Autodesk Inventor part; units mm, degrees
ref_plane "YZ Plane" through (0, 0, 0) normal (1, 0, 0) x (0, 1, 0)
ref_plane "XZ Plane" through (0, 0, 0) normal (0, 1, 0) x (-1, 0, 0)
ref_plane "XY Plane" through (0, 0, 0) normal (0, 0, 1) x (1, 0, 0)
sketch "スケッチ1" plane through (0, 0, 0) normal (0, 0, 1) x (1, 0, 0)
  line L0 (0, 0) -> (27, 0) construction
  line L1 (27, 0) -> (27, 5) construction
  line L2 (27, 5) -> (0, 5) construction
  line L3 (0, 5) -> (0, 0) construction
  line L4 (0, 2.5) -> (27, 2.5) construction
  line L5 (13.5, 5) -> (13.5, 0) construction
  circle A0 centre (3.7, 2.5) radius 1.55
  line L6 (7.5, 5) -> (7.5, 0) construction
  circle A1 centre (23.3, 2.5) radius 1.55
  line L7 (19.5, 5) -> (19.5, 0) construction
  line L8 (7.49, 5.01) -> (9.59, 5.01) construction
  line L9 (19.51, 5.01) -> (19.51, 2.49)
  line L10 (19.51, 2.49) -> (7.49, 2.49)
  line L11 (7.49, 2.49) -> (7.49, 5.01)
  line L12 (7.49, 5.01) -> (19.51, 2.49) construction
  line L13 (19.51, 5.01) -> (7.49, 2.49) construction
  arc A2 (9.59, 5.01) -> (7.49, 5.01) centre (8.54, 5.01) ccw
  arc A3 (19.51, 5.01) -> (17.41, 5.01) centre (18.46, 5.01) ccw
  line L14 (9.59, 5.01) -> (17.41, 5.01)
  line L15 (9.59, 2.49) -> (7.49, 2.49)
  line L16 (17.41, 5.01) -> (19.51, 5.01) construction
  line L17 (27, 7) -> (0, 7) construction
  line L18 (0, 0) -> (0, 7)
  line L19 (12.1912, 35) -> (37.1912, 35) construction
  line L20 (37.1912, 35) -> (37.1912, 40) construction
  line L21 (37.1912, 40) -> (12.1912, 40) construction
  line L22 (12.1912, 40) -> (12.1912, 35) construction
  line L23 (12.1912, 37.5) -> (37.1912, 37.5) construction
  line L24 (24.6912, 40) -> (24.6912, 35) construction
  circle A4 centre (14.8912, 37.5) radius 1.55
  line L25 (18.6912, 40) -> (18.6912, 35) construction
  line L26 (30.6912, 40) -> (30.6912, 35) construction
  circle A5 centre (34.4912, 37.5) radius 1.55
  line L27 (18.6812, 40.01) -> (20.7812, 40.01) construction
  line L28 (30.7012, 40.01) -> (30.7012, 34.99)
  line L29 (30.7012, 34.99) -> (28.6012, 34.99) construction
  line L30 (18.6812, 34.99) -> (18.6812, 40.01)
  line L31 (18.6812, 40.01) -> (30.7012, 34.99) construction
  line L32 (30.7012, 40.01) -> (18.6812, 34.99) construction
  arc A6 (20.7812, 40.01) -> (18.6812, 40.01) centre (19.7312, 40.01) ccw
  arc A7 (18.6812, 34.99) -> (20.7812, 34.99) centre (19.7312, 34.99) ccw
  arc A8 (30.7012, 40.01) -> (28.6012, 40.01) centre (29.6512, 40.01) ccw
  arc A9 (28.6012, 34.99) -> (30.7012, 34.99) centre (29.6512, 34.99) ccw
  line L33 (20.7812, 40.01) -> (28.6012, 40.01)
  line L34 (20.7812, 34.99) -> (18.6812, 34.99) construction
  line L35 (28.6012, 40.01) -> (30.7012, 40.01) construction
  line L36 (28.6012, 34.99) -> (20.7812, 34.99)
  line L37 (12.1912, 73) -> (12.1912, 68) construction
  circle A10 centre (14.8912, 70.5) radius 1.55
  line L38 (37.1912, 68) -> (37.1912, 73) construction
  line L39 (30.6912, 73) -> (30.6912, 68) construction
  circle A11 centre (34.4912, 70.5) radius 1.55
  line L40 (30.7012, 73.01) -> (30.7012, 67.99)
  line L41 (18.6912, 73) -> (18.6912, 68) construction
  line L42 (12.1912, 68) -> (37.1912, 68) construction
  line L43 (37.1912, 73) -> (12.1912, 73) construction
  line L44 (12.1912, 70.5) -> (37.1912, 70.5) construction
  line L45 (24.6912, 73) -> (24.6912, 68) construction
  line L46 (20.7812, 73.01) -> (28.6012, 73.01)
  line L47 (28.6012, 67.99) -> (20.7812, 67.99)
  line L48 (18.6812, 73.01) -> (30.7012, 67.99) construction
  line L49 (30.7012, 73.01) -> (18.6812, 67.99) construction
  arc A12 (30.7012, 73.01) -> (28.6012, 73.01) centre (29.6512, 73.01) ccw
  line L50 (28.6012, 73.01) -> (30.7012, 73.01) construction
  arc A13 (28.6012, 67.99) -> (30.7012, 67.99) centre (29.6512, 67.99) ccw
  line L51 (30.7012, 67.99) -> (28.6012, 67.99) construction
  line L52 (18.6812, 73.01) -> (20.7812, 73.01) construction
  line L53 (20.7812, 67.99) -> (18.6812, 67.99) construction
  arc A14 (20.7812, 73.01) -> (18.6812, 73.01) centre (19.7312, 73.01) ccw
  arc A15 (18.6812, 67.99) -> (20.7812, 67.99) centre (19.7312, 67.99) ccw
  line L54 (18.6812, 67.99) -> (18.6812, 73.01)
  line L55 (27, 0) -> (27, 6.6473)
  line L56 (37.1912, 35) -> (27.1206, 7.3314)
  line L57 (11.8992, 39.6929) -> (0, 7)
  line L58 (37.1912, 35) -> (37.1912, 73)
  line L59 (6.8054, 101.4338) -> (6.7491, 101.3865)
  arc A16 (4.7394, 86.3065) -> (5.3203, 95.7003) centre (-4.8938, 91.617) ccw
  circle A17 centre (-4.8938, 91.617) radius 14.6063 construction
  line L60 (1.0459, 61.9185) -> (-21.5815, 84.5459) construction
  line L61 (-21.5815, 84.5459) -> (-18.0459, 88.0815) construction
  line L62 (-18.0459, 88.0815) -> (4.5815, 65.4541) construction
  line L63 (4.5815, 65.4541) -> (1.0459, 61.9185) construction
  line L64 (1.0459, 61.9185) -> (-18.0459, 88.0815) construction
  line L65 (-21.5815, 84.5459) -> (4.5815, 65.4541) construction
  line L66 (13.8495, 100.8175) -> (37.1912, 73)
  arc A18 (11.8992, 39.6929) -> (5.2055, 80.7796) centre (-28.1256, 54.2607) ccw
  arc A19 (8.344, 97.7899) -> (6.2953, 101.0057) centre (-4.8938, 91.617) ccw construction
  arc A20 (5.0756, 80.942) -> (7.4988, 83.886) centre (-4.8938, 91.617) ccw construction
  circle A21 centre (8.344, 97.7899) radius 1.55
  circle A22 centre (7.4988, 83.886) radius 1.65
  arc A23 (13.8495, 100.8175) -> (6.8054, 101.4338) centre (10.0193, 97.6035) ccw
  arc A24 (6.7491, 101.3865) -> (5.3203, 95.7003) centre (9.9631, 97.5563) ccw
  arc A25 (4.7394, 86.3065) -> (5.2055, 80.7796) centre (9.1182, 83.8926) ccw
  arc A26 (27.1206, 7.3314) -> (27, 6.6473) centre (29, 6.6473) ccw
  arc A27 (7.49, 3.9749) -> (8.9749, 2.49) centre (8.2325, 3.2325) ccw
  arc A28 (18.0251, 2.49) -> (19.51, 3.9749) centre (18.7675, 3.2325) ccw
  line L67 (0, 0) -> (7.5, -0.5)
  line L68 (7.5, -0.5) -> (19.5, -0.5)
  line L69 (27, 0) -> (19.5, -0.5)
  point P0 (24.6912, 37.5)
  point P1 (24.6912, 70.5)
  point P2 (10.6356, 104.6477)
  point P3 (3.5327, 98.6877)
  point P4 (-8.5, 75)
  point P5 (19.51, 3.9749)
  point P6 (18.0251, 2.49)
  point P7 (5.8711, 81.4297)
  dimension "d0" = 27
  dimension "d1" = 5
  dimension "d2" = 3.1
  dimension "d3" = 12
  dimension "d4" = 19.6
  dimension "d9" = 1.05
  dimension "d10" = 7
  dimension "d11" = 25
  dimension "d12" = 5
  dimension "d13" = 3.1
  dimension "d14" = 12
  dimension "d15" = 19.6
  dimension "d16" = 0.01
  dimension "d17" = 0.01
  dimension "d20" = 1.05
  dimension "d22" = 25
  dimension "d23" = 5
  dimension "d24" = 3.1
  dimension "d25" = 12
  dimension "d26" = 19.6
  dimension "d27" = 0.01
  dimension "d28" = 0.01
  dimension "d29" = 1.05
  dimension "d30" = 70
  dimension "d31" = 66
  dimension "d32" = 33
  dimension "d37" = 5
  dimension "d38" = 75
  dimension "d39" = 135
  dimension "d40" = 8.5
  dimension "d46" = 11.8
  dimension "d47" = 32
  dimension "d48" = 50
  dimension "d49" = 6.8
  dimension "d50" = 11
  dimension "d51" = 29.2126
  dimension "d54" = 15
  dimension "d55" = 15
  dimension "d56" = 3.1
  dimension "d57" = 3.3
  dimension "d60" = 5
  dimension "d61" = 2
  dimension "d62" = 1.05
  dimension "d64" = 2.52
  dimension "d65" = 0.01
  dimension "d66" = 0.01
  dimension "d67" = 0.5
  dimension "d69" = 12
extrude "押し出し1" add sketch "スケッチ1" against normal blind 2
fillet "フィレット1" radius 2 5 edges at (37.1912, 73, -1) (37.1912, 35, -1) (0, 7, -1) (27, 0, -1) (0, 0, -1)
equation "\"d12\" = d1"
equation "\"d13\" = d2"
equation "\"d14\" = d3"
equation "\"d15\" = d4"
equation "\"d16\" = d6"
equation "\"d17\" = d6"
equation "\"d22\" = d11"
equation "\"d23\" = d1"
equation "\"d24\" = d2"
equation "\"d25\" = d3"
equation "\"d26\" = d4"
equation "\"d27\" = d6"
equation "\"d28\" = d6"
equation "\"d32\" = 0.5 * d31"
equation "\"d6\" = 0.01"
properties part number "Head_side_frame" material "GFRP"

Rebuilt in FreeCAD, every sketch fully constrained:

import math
import FreeCAD as App
import Part
import Sketcher
from FreeCAD import Vector
Q = App.Units.Quantity


def edges_at(feature, points):
    """Names of the edges that pass closest to the given points."""
    edges = feature.Shape.Edges
    near = lambda p: min(range(len(edges)), key=lambda i: edges[i].distToShape(Part.Vertex(*p))[0])
    return sorted({f"Edge{near(p) + 1}" for p in points})

doc = App.newDocument("Part")
body = doc.addObject("PartDesign::Body", "Body")

sketch1 = body.newObject("Sketcher::SketchObject", "Sketch")
sketch1.AttachmentSupport = (doc.getObject("XY_Plane"), [""])
sketch1.MapMode = "FlatFace"
sketch1.addGeometry(Part.LineSegment(Vector(0, 7, 0), Vector(0, 0, 0)), False)
sketch1.addGeometry(Part.LineSegment(Vector(0, 0, 0), Vector(7.5, -0.5, 0)), False)
sketch1.addGeometry(Part.LineSegment(Vector(7.5, -0.5, 0), Vector(19.5, -0.5, 0)), False)
sketch1.addGeometry(Part.LineSegment(Vector(19.5, -0.5, 0), Vector(27, 0, 0)), False)
sketch1.addGeometry(Part.LineSegment(Vector(27, 0, 0), Vector(27, 6.65, 0)), False)
sketch1.addGeometry(Part.ArcOfCircle(Part.Circle(Vector(29, 6.65, 0), Vector(0, 0, 1), 2), math.radians(160), math.radians(180)), False)
sketch1.addGeometry(Part.LineSegment(Vector(27.12, 7.33, 0), Vector(37.19, 35, 0)), False)
sketch1.addGeometry(Part.LineSegment(Vector(37.19, 35, 0), Vector(37.19, 73, 0)), False)
sketch1.addGeometry(Part.LineSegment(Vector(37.19, 73, 0), Vector(13.85, 100.82, 0)), False)
sketch1.addGeometry(Part.ArcOfCircle(Part.Circle(Vector(10.02, 97.6, 0), Vector(0, 0, 1), 5), math.radians(40), math.radians(130)), False)
sketch1.addGeometry(Part.LineSegment(Vector(6.81, 101.43, 0), Vector(6.75, 101.39, 0)), False)
sketch1.addGeometry(Part.ArcOfCircle(Part.Circle(Vector(9.96, 97.56, 0), Vector(0, 0, 1), 5), math.radians(130), math.radians(202)), False)
sketch1.addGeometry(Part.ArcOfCircle(Part.Circle(Vector(-4.89, 91.62, 0), Vector(0, 0, 1), 11), math.radians(-29), math.radians(22)), False)
sketch1.addGeometry(Part.ArcOfCircle(Part.Circle(Vector(9.12, 83.89, 0), Vector(0, 0, 1), 5), math.radians(151), math.radians(219)), False)
sketch1.addGeometry(Part.ArcOfCircle(Part.Circle(Vector(-28.13, 54.26, 0), Vector(0, 0, 1), 42.59), math.radians(-20), math.radians(39)), False)
sketch1.addGeometry(Part.LineSegment(Vector(11.9, 39.69, 0), Vector(0, 7, 0)), False)
sketch1.addGeometry(Part.Circle(Vector(3.7, 2.5, 0), Vector(0, 0, 1), 1.55), False)
sketch1.addGeometry(Part.ArcOfCircle(Part.Circle(Vector(18.46, 5.01, 0), Vector(0, 0, 1), 1.05), math.radians(0), math.radians(180)), False)
sketch1.addGeometry(Part.LineSegment(Vector(19.51, 5.01, 0), Vector(19.51, 3.97, 0)), False)
sketch1.addGeometry(Part.ArcOfCircle(Part.Circle(Vector(18.77, 3.23, 0), Vector(0, 0, 1), 1.05), math.radians(-135), math.radians(45)), False)
sketch1.addGeometry(Part.LineSegment(Vector(18.03, 2.49, 0), Vector(8.97, 2.49, 0)), False)
sketch1.addGeometry(Part.ArcOfCircle(Part.Circle(Vector(8.23, 3.23, 0), Vector(0, 0, 1), 1.05), math.radians(135), math.radians(315)), False)
sketch1.addGeometry(Part.LineSegment(Vector(7.49, 3.97, 0), Vector(7.49, 5.01, 0)), False)
sketch1.addGeometry(Part.ArcOfCircle(Part.Circle(Vector(8.54, 5.01, 0), Vector(0, 0, 1), 1.05), math.radians(0), math.radians(180)), False)
sketch1.addGeometry(Part.LineSegment(Vector(9.59, 5.01, 0), Vector(17.41, 5.01, 0)), False)
sketch1.addGeometry(Part.Circle(Vector(14.89, 37.5, 0), Vector(0, 0, 1), 1.55), False)
sketch1.addGeometry(Part.Circle(Vector(23.3, 2.5, 0), Vector(0, 0, 1), 1.55), False)
sketch1.addGeometry(Part.ArcOfCircle(Part.Circle(Vector(29.65, 40.01, 0), Vector(0, 0, 1), 1.05), math.radians(0), math.radians(180)), False)
sketch1.addGeometry(Part.LineSegment(Vector(30.7, 40.01, 0), Vector(30.7, 34.99, 0)), False)
sketch1.addGeometry(Part.ArcOfCircle(Part.Circle(Vector(29.65, 34.99, 0), Vector(0, 0, 1), 1.05), math.radians(180), math.radians(360)), False)
sketch1.addGeometry(Part.LineSegment(Vector(28.6, 34.99, 0), Vector(20.78, 34.99, 0)), False)
sketch1.addGeometry(Part.ArcOfCircle(Part.Circle(Vector(19.73, 34.99, 0), Vector(0, 0, 1), 1.05), math.radians(180), math.radians(360)), False)
sketch1.addGeometry(Part.LineSegment(Vector(18.68, 34.99, 0), Vector(18.68, 40.01, 0)), False)
sketch1.addGeometry(Part.ArcOfCircle(Part.Circle(Vector(19.73, 40.01, 0), Vector(0, 0, 1), 1.05), math.radians(0), math.radians(180)), False)
sketch1.addGeometry(Part.LineSegment(Vector(20.78, 40.01, 0), Vector(28.6, 40.01, 0)), False)
sketch1.addGeometry(Part.Circle(Vector(34.49, 37.5, 0), Vector(0, 0, 1), 1.55), False)
sketch1.addGeometry(Part.Circle(Vector(14.89, 70.5, 0), Vector(0, 0, 1), 1.55), False)
sketch1.addGeometry(Part.Circle(Vector(7.5, 83.89, 0), Vector(0, 0, 1), 1.65), False)
sketch1.addGeometry(Part.Circle(Vector(8.34, 97.79, 0), Vector(0, 0, 1), 1.55), False)
sketch1.addGeometry(Part.ArcOfCircle(Part.Circle(Vector(29.65, 73.01, 0), Vector(0, 0, 1), 1.05), math.radians(0), math.radians(180)), False)
sketch1.addGeometry(Part.LineSegment(Vector(30.7, 73.01, 0), Vector(30.7, 67.99, 0)), False)
sketch1.addGeometry(Part.ArcOfCircle(Part.Circle(Vector(29.65, 67.99, 0), Vector(0, 0, 1), 1.05), math.radians(180), math.radians(360)), False)
sketch1.addGeometry(Part.LineSegment(Vector(28.6, 67.99, 0), Vector(20.78, 67.99, 0)), False)
sketch1.addGeometry(Part.ArcOfCircle(Part.Circle(Vector(19.73, 67.99, 0), Vector(0, 0, 1), 1.05), math.radians(180), math.radians(360)), False)
sketch1.addGeometry(Part.LineSegment(Vector(18.68, 67.99, 0), Vector(18.68, 73.01, 0)), False)
sketch1.addGeometry(Part.ArcOfCircle(Part.Circle(Vector(19.73, 73.01, 0), Vector(0, 0, 1), 1.05), math.radians(0), math.radians(180)), False)
sketch1.addGeometry(Part.LineSegment(Vector(20.78, 73.01, 0), Vector(28.6, 73.01, 0)), False)
sketch1.addGeometry(Part.Circle(Vector(34.49, 70.5, 0), Vector(0, 0, 1), 1.55), False)
sketch1.addConstraint(Sketcher.Constraint("Coincident", 0, 2, 1, 1))
sketch1.addConstraint(Sketcher.Constraint("Coincident", 1, 2, 2, 1))
sketch1.addConstraint(Sketcher.Constraint("Coincident", 2, 2, 3, 1))
sketch1.addConstraint(Sketcher.Constraint("Coincident", 3, 2, 4, 1))
sketch1.addConstraint(Sketcher.Constraint("Tangent", 4, 2, 5, 2))
sketch1.addConstraint(Sketcher.Constraint("Tangent", 5, 1, 6, 1))
sketch1.addConstraint(Sketcher.Constraint("Coincident", 6, 2, 7, 1))
sketch1.addConstraint(Sketcher.Constraint("Coincident", 7, 2, 8, 1))
sketch1.addConstraint(Sketcher.Constraint("Tangent", 8, 2, 9, 1))
sketch1.addConstraint(Sketcher.Constraint("Coincident", 9, 2, 10, 1))
sketch1.addConstraint(Sketcher.Constraint("Coincident", 10, 2, 11, 1))
sketch1.addConstraint(Sketcher.Constraint("Tangent", 11, 2, 12, 2))
sketch1.addConstraint(Sketcher.Constraint("Tangent", 12, 1, 13, 1))
sketch1.addConstraint(Sketcher.Constraint("Tangent", 13, 2, 14, 2))
sketch1.addConstraint(Sketcher.Constraint("Tangent", 14, 1, 15, 1))
sketch1.addConstraint(Sketcher.Constraint("Coincident", 15, 2, 0, 1))
sketch1.addConstraint(Sketcher.Constraint("Tangent", 17, 1, 18, 1))
sketch1.addConstraint(Sketcher.Constraint("Coincident", 18, 2, 19, 2))
sketch1.addConstraint(Sketcher.Constraint("Coincident", 19, 1, 20, 1))
sketch1.addConstraint(Sketcher.Constraint("Coincident", 20, 2, 21, 2))
sketch1.addConstraint(Sketcher.Constraint("Coincident", 21, 1, 22, 1))
sketch1.addConstraint(Sketcher.Constraint("Tangent", 22, 2, 23, 2))
sketch1.addConstraint(Sketcher.Constraint("Coincident", 23, 1, 24, 1))
sketch1.addConstraint(Sketcher.Constraint("Coincident", 24, 2, 17, 2))
sketch1.addConstraint(Sketcher.Constraint("Tangent", 27, 1, 28, 1))
sketch1.addConstraint(Sketcher.Constraint("Tangent", 28, 2, 29, 2))
sketch1.addConstraint(Sketcher.Constraint("Coincident", 29, 1, 30, 1))
sketch1.addConstraint(Sketcher.Constraint("Coincident", 30, 2, 31, 2))
sketch1.addConstraint(Sketcher.Constraint("Tangent", 31, 1, 32, 1))
sketch1.addConstraint(Sketcher.Constraint("Tangent", 32, 2, 33, 2))
sketch1.addConstraint(Sketcher.Constraint("Coincident", 33, 1, 34, 1))
sketch1.addConstraint(Sketcher.Constraint("Coincident", 34, 2, 27, 2))
sketch1.addConstraint(Sketcher.Constraint("Tangent", 39, 1, 40, 1))
sketch1.addConstraint(Sketcher.Constraint("Tangent", 40, 2, 41, 2))
sketch1.addConstraint(Sketcher.Constraint("Coincident", 41, 1, 42, 1))
sketch1.addConstraint(Sketcher.Constraint("Coincident", 42, 2, 43, 2))
sketch1.addConstraint(Sketcher.Constraint("Tangent", 43, 1, 44, 1))
sketch1.addConstraint(Sketcher.Constraint("Tangent", 44, 2, 45, 2))
sketch1.addConstraint(Sketcher.Constraint("Coincident", 45, 1, 46, 1))
sketch1.addConstraint(Sketcher.Constraint("Coincident", 46, 2, 39, 2))
sketch1.addConstraint(Sketcher.Constraint("Vertical", 0))
sketch1.addConstraint(Sketcher.Constraint("Horizontal", 2))
sketch1.addConstraint(Sketcher.Constraint("Vertical", 4))
sketch1.addConstraint(Sketcher.Constraint("Vertical", 7))
sketch1.addConstraint(Sketcher.Constraint("Vertical", 18))
sketch1.addConstraint(Sketcher.Constraint("Horizontal", 20))
sketch1.addConstraint(Sketcher.Constraint("Vertical", 22))
sketch1.addConstraint(Sketcher.Constraint("Horizontal", 24))
sketch1.addConstraint(Sketcher.Constraint("Vertical", 28))
sketch1.addConstraint(Sketcher.Constraint("Horizontal", 30))
sketch1.addConstraint(Sketcher.Constraint("Vertical", 32))
sketch1.addConstraint(Sketcher.Constraint("Horizontal", 34))
sketch1.addConstraint(Sketcher.Constraint("Vertical", 40))
sketch1.addConstraint(Sketcher.Constraint("Horizontal", 42))
sketch1.addConstraint(Sketcher.Constraint("Vertical", 44))
sketch1.addConstraint(Sketcher.Constraint("Horizontal", 46))
sketch1.addConstraint(Sketcher.Constraint("Coincident", 0, 2, -1, 1))
sketch1.addConstraint(Sketcher.Constraint("Equal", 9, 11))
sketch1.addConstraint(Sketcher.Constraint("Equal", 11, 13))
sketch1.addConstraint(Sketcher.Constraint("Equal", 17, 19))
sketch1.addConstraint(Sketcher.Constraint("Equal", 19, 21))
sketch1.addConstraint(Sketcher.Constraint("Equal", 21, 23))
sketch1.addConstraint(Sketcher.Constraint("Equal", 16, 25))
sketch1.addConstraint(Sketcher.Constraint("Equal", 25, 26))
sketch1.addConstraint(Sketcher.Constraint("Equal", 23, 27))
sketch1.addConstraint(Sketcher.Constraint("Equal", 27, 29))
sketch1.addConstraint(Sketcher.Constraint("Equal", 29, 31))
sketch1.addConstraint(Sketcher.Constraint("Equal", 31, 33))
sketch1.addConstraint(Sketcher.Constraint("Equal", 26, 35))
sketch1.addConstraint(Sketcher.Constraint("Equal", 35, 36))
sketch1.addConstraint(Sketcher.Constraint("Equal", 36, 38))
sketch1.addConstraint(Sketcher.Constraint("Equal", 33, 39))
sketch1.addConstraint(Sketcher.Constraint("Equal", 39, 41))
sketch1.addConstraint(Sketcher.Constraint("Equal", 41, 43))
sketch1.addConstraint(Sketcher.Constraint("Equal", 43, 45))
sketch1.addConstraint(Sketcher.Constraint("Equal", 38, 47))
sketch1.addConstraint(Sketcher.Constraint("PointOnObject", 3, 2, -1))
sketch1.addConstraint(Sketcher.Constraint("Parallel", 6, 15))
sketch1.addConstraint(Sketcher.Constraint("Horizontal", 19, 3, 21, 3))
sketch1.addConstraint(Sketcher.Constraint("Horizontal", 17, 3, 23, 3))
sketch1.addConstraint(Sketcher.Constraint("Horizontal", 16, 3, 26, 3))
sketch1.addConstraint(Sketcher.Constraint("Horizontal", 29, 3, 31, 3))
sketch1.addConstraint(Sketcher.Constraint("Horizontal", 27, 3, 33, 3))
sketch1.addConstraint(Sketcher.Constraint("Horizontal", 25, 3, 35, 3))
sketch1.addConstraint(Sketcher.Constraint("Horizontal", 41, 3, 43, 3))
sketch1.addConstraint(Sketcher.Constraint("Horizontal", 39, 3, 45, 3))
sketch1.addConstraint(Sketcher.Constraint("Horizontal", 36, 3, 47, 3))
sketch1.addConstraint(Sketcher.Constraint("Horizontal", 18, 2, 21, 1))
sketch1.addConstraint(Sketcher.Constraint("Horizontal", 22, 2, 23, 1))
sketch1.addConstraint(Sketcher.Constraint("Horizontal", 28, 2, 29, 1))
sketch1.addConstraint(Sketcher.Constraint("Horizontal", 32, 2, 33, 1))
sketch1.addConstraint(Sketcher.Constraint("Horizontal", 40, 2, 41, 1))
sketch1.addConstraint(Sketcher.Constraint("Horizontal", 44, 2, 45, 1))
sketch1.addConstraint(Sketcher.Constraint("Vertical", 25, 3, 36, 3))
sketch1.addConstraint(Sketcher.Constraint("Vertical", 29, 3, 39, 3))
sketch1.addConstraint(Sketcher.Constraint("Vertical", 33, 3, 43, 3))
sketch1.addConstraint(Sketcher.Constraint("Vertical", 35, 3, 47, 3))
sketch1.addConstraint(Sketcher.Constraint("Equal", 24, 30))
sketch1.addConstraint(Sketcher.Constraint("Equal", 32, 40))
sketch1.addConstraint(Sketcher.Constraint("Equal", 1, 3))
sketch1.addConstraint(Sketcher.Constraint("Radius", 9, Q("5 mm")))
sketch1.addConstraint(Sketcher.Constraint("Radius", 12, Q("11 mm")))
sketch1.addConstraint(Sketcher.Constraint("Diameter", 16, Q("3.1 mm")))
sketch1.addConstraint(Sketcher.Constraint("Diameter", 37, Q("3.3 mm")))
sketch1.addConstraint(Sketcher.Constraint("DistanceX", 2, 1, 2, 2, Q("12 mm")))
sketch1.addConstraint(Sketcher.Constraint("DistanceY", 0, 2, 0, 1, Q("7 mm")))
sketch1.addConstraint(Sketcher.Constraint("Angle", 6, Q("70 deg")))
sketch1.addConstraint(Sketcher.Constraint("Radius", 17, Q("1.05 mm")))
sketch1.addConstraint(Sketcher.Constraint("DistanceX", -1, 1, 3, 2, Q("27 mm")))
sketch1.addConstraint(Sketcher.Constraint("DistanceY", 1, 2, -1, 1, Q("0.5 mm")))
sketch1.addConstraint(Sketcher.Constraint("DistanceY", 7, 1, 7, 2, Q("38 mm")))
sketch1.addConstraint(Sketcher.Constraint("Angle", 8, Q("130 deg")))
sketch1.addConstraint(Sketcher.Constraint("DistanceY", -1, 1, 6, 2, Q("35 mm")))
sketch1.addConstraint(Sketcher.Constraint("Radius", 5, Q("1.999 mm")))
sketch1.addConstraint(Sketcher.Constraint("DistanceX", 24, 1, 24, 2, Q("7.82 mm")))
sketch1.addConstraint(Sketcher.Constraint("DistanceY", 28, 2, 28, 1, Q("5.02 mm")))
sketch1.addConstraint(Sketcher.Constraint("DistanceX", -1, 1, 16, 3, Q("3.7 mm")))
sketch1.addConstraint(Sketcher.Constraint("DistanceY", -1, 1, 16, 3, Q("2.5 mm")))
sketch1.addConstraint(Sketcher.Constraint("DistanceY", -1, 1, 25, 3, Q("37.5 mm")))
sketch1.addConstraint(Sketcher.Constraint("DistanceX", -1, 1, 26, 3, Q("23.3 mm")))
sketch1.addConstraint(Sketcher.Constraint("DistanceY", -1, 1, 36, 3, Q("70.5 mm")))
sketch1.addConstraint(Sketcher.Constraint("Radius", 14, Q("42.5935 mm")))
sketch1.addConstraint(Sketcher.Constraint("DistanceY", 18, 2, 18, 1, Q("1.035 mm")))
sketch1.addConstraint(Sketcher.Constraint("DistanceX", -1, 1, 17, 3, Q("18.46 mm")))
sketch1.addConstraint(Sketcher.Constraint("DistanceY", -1, 1, 17, 3, Q("5.01 mm")))
sketch1.addConstraint(Sketcher.Constraint("DistanceY", -1, 1, 27, 3, Q("40.01 mm")))
sketch1.addConstraint(Sketcher.Constraint("DistanceY", -1, 1, 38, 3, Q("97.79 mm")))
sketch1.addConstraint(Sketcher.Constraint("DistanceY", -1, 1, 39, 3, Q("73.01 mm")))
sketch1.addConstraint(Sketcher.Constraint("DistanceY", -1, 1, 19, 1, Q("2.49 mm")))
sketch1.addConstraint(Sketcher.Constraint("Distance", 15, Q("34.791 mm")))
sketch1.addConstraint(Sketcher.Constraint("DistanceY", 4, 1, 4, 2, Q("6.6473 mm")))
sketch1.addConstraint(Sketcher.Constraint("DistanceX", -1, 1, 11, 3, Q("9.963 mm")))
sketch1.addConstraint(Sketcher.Constraint("DistanceY", -1, 1, 12, 3, Q("91.617 mm")))
sketch1.addConstraint(Sketcher.Constraint("DistanceY", -1, 1, 37, 3, Q("83.886 mm")))
sketch1.addConstraint(Sketcher.Constraint("DistanceX", -1, 1, 38, 3, Q("8.344 mm")))
sketch1.addConstraint(Sketcher.Constraint("DistanceX", -1, 1, 10, 2, Q("6.749 mm")))
sketch1.addConstraint(Sketcher.Constraint("Distance", 8, Q("36.3132 mm")))
sketch1.addConstraint(Sketcher.Constraint("Distance", 10, Q("0.0735 mm")))
sketch1.addConstraint(Sketcher.Constraint("DistanceY", -1, 1, 11, 3, Q("97.5563 mm")))
sketch1.addConstraint(Sketcher.Constraint("DistanceX", -1, 1, 19, 3, Q("18.7675 mm")))
sketch1.addConstraint(Sketcher.Constraint("DistanceX", -1, 1, 25, 3, Q("14.8912 mm")))
sketch1.addConstraint(Sketcher.Constraint("DistanceX", -1, 1, 27, 3, Q("29.6512 mm")))
sketch1.addConstraint(Sketcher.Constraint("DistanceX", -1, 1, 35, 3, Q("34.4912 mm")))
sketch1.addConstraint(Sketcher.Constraint("DistanceX", -1, 1, 37, 3, Q("7.4988 mm")))
pad1 = body.newObject("PartDesign::Pad", "Pad")
pad1.Profile = sketch1
pad1.Length = 2
pad1.Reversed = True
doc.recompute()

fillet = body.newObject("PartDesign::Fillet", "Fillet")
fillet.Base = (pad1, edges_at(pad1, [
    (37.191, 73, -1),
    (37.191, 35, -1),
    (0, 7, -1),
    (27, 0, -1),
    (0, 0, -1),
]))
fillet.Radius = 2

doc.recompute()
